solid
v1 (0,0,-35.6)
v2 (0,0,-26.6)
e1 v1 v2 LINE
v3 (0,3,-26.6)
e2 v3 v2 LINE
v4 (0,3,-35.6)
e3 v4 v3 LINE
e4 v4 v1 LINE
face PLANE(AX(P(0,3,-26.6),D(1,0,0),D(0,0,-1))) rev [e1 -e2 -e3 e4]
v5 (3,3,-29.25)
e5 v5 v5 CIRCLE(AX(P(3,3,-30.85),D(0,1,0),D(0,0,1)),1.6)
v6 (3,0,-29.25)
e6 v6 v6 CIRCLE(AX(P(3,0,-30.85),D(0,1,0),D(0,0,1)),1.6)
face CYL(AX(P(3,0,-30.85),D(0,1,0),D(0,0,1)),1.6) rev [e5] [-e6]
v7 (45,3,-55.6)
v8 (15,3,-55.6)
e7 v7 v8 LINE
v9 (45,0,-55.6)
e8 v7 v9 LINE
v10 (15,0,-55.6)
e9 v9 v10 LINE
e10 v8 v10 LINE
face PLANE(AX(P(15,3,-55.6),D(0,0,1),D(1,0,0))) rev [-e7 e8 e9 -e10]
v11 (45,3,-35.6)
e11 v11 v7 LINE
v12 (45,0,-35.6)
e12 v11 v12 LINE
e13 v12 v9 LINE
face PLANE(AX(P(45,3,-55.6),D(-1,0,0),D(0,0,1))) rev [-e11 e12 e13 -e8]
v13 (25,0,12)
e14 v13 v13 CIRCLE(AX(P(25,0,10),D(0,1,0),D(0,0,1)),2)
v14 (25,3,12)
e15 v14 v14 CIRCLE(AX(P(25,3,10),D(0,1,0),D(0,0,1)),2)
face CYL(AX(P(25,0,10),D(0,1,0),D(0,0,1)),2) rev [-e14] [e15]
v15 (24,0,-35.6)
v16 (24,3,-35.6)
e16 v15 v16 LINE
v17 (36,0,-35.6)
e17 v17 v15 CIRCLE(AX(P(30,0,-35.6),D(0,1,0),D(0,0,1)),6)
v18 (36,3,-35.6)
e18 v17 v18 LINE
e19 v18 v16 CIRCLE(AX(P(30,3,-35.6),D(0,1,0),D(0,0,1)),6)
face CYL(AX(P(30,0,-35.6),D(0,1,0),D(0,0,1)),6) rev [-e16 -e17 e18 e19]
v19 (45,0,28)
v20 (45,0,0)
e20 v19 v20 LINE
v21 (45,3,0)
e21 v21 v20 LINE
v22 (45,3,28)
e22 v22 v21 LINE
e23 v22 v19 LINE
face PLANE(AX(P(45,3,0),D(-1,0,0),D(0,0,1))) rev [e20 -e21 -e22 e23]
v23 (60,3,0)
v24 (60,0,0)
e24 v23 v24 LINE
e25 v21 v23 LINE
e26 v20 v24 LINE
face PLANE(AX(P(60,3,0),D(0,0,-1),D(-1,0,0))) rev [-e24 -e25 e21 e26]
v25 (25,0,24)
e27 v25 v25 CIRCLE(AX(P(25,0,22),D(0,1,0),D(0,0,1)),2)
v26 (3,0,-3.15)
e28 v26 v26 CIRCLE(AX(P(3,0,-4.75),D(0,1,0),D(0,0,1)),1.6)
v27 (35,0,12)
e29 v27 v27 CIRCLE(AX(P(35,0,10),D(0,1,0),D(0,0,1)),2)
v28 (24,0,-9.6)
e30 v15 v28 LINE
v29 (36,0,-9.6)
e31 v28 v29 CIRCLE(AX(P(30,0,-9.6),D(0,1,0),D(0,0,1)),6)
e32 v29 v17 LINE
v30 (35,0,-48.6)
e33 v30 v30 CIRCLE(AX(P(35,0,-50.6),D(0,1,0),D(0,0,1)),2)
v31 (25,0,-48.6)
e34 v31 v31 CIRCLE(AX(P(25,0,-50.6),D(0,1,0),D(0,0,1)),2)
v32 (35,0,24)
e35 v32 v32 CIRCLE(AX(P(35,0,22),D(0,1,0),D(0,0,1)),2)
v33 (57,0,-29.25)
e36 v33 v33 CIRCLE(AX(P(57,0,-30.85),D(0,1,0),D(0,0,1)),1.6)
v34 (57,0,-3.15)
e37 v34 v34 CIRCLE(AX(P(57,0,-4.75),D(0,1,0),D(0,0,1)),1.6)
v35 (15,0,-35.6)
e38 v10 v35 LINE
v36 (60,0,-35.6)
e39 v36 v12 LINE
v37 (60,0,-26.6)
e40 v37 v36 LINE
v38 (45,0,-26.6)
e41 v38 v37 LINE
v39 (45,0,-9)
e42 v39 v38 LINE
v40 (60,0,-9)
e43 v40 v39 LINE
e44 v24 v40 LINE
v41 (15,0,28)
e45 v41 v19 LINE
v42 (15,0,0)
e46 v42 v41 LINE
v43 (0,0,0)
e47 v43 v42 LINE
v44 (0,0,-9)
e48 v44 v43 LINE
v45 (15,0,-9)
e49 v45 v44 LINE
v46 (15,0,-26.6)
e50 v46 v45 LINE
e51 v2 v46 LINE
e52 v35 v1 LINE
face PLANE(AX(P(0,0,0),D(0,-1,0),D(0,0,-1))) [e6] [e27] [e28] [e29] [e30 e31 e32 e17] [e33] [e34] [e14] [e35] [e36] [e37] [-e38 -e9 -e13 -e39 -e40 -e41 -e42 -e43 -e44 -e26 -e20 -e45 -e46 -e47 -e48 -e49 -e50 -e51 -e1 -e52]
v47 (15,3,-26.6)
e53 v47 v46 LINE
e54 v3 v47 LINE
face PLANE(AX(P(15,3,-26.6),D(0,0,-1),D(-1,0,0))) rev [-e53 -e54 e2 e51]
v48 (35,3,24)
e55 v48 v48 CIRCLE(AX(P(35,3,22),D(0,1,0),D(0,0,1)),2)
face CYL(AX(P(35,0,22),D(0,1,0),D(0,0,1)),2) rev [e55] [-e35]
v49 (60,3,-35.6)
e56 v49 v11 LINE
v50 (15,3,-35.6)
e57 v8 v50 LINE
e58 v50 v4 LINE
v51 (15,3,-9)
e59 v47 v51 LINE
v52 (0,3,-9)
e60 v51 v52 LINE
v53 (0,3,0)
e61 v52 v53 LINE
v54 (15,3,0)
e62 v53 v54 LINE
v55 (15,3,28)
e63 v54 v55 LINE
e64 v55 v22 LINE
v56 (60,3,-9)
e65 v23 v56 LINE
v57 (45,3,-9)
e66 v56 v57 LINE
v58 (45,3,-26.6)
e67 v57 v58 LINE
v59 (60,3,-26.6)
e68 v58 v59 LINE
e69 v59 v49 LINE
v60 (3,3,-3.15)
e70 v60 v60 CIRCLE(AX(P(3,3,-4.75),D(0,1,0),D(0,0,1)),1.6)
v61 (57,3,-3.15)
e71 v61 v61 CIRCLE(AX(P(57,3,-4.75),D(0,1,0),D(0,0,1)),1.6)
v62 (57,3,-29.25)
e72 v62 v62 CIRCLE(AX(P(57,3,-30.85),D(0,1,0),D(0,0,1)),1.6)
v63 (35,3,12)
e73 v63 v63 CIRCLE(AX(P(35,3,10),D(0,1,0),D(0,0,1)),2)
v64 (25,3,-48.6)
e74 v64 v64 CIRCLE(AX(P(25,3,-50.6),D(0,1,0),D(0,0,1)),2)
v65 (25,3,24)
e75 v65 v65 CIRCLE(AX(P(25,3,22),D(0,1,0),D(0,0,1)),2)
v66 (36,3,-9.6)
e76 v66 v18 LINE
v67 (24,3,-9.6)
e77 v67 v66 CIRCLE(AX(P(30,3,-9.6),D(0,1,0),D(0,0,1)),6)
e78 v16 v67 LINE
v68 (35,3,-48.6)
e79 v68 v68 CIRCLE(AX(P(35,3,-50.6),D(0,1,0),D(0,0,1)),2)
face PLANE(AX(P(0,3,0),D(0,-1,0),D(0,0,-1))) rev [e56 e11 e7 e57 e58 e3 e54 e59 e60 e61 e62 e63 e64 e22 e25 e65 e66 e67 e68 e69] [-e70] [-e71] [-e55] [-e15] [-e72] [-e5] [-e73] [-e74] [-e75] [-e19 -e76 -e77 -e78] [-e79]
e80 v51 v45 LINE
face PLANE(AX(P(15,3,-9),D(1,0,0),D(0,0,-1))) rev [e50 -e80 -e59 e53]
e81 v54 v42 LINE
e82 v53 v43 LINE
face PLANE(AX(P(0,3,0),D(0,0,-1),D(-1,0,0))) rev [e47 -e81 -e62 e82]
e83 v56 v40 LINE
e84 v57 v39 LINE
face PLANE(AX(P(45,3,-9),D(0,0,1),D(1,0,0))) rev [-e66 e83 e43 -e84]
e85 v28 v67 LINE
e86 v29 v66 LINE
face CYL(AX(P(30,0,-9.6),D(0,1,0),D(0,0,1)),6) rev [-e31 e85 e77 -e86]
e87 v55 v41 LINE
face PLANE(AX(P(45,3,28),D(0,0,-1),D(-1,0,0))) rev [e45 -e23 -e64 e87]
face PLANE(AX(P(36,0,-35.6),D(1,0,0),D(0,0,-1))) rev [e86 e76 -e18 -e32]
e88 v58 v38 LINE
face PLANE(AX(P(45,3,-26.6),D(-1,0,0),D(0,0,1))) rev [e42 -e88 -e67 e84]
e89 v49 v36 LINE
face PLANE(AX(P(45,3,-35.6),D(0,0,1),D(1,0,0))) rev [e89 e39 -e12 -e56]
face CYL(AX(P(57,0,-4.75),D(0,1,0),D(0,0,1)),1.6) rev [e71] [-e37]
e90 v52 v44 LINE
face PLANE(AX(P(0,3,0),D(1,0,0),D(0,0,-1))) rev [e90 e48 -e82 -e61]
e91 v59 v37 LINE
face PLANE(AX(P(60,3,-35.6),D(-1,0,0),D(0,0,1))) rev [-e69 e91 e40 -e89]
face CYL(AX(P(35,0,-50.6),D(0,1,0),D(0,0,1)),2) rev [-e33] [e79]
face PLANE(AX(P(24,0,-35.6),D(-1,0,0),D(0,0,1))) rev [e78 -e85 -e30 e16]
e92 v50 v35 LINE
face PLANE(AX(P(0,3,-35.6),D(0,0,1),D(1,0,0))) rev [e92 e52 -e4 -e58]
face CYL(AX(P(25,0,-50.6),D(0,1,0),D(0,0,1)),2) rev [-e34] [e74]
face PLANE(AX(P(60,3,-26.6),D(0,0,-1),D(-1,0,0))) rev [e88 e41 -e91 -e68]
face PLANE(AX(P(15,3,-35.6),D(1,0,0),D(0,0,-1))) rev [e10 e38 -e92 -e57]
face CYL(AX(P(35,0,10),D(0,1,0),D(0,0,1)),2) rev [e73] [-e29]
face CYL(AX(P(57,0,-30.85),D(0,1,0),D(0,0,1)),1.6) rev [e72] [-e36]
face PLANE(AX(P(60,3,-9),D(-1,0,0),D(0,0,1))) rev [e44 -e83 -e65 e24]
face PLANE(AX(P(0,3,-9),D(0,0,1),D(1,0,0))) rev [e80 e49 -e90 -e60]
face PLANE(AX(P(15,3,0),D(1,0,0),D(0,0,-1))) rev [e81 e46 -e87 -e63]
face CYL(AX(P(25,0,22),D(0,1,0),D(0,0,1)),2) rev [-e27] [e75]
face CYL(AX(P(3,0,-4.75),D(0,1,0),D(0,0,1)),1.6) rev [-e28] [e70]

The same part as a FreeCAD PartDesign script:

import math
import FreeCAD as App
import Part
import Sketcher
from FreeCAD import Vector

doc = App.newDocument("Part")
body = doc.addObject("PartDesign::Body", "Body")

sketch1 = doc.addObject("Sketcher::SketchObject", "Sketch")
body.addObject(sketch1)
sketch1.AttachmentSupport = (doc.XZ_Plane, [""])
sketch1.MapMode = "FlatFace"
sketch1.addGeometry([
    Part.LineSegment(Vector(0, 0, 0), Vector(15, 0, 0)),
    Part.LineSegment(Vector(15, 0, 0), Vector(15, 28, 0)),
    Part.LineSegment(Vector(15, 28, 0), Vector(45, 28, 0)),
    Part.LineSegment(Vector(45, 28, 0), Vector(45, 0, 0)),
    Part.LineSegment(Vector(45, 0, 0), Vector(60, 0, 0)),
    Part.LineSegment(Vector(60, 0, 0), Vector(60, -9, 0)),
    Part.LineSegment(Vector(60, -9, 0), Vector(45, -9, 0)),
    Part.LineSegment(Vector(45, -9, 0), Vector(45, -26.6, 0)),
    Part.LineSegment(Vector(45, -26.6, 0), Vector(60, -26.6, 0)),
    Part.LineSegment(Vector(60, -26.6, 0), Vector(60, -35.6, 0)),
    Part.LineSegment(Vector(60, -35.6, 0), Vector(45, -35.6, 0)),
    Part.LineSegment(Vector(45, -35.6, 0), Vector(45, -55.6, 0)),
    Part.LineSegment(Vector(45, -55.6, 0), Vector(15, -55.6, 0)),
    Part.LineSegment(Vector(15, -55.6, 0), Vector(15, -35.6, 0)),
    Part.LineSegment(Vector(15, -35.6, 0), Vector(0, -35.6, 0)),
    Part.LineSegment(Vector(0, -35.6, 0), Vector(0, -26.6, 0)),
    Part.LineSegment(Vector(0, -26.6, 0), Vector(15, -26.6, 0)),
    Part.LineSegment(Vector(15, -26.6, 0), Vector(15, -9, 0)),
    Part.LineSegment(Vector(15, -9, 0), Vector(0, -9, 0)),
    Part.LineSegment(Vector(0, -9, 0), Vector(0, 0, 0)),
], False)
sketch1.addConstraint([
    Sketcher.Constraint("Coincident", 0, 2, 1, 1),
    Sketcher.Constraint("Coincident", 1, 2, 2, 1),
    Sketcher.Constraint("Coincident", 2, 2, 3, 1),
    Sketcher.Constraint("Coincident", 3, 2, 4, 1),
    Sketcher.Constraint("Coincident", 4, 2, 5, 1),
    Sketcher.Constraint("Coincident", 5, 2, 6, 1),
    Sketcher.Constraint("Coincident", 6, 2, 7, 1),
    Sketcher.Constraint("Coincident", 7, 2, 8, 1),
    Sketcher.Constraint("Coincident", 8, 2, 9, 1),
    Sketcher.Constraint("Coincident", 9, 2, 10, 1),
    Sketcher.Constraint("Coincident", 10, 2, 11, 1),
    Sketcher.Constraint("Coincident", 11, 2, 12, 1),
    Sketcher.Constraint("Coincident", 12, 2, 13, 1),
    Sketcher.Constraint("Coincident", 13, 2, 14, 1),
    Sketcher.Constraint("Coincident", 14, 2, 15, 1),
    Sketcher.Constraint("Coincident", 15, 2, 16, 1),
    Sketcher.Constraint("Coincident", 16, 2, 17, 1),
    Sketcher.Constraint("Coincident", 17, 2, 18, 1),
    Sketcher.Constraint("Coincident", 18, 2, 19, 1),
    Sketcher.Constraint("Coincident", 19, 2, 0, 1),
    Sketcher.Constraint("Horizontal", 0),
    Sketcher.Constraint("Vertical", 1),
    Sketcher.Constraint("Horizontal", 2),
    Sketcher.Constraint("Vertical", 3),
    Sketcher.Constraint("Horizontal", 4),
    Sketcher.Constraint("Vertical", 5),
    Sketcher.Constraint("Horizontal", 6),
    Sketcher.Constraint("Vertical", 7),
    Sketcher.Constraint("Horizontal", 8),
    Sketcher.Constraint("Vertical", 9),
    Sketcher.Constraint("Horizontal", 10),
    Sketcher.Constraint("Vertical", 11),
    Sketcher.Constraint("Horizontal", 12),
    Sketcher.Constraint("Vertical", 13),
    Sketcher.Constraint("Horizontal", 14),
    Sketcher.Constraint("Vertical", 15),
    Sketcher.Constraint("Horizontal", 16),
    Sketcher.Constraint("Vertical", 17),
    Sketcher.Constraint("Horizontal", 18),
    Sketcher.Constraint("Vertical", 19),
    Sketcher.Constraint("Coincident", 19, 2, -1, 1),
    Sketcher.Constraint("PointOnObject", 3, 2, -1),
    Sketcher.Constraint("PointOnObject", 14, 2, -2),
    Sketcher.Constraint("Horizontal", 10, 2, 13, 2),
    Sketcher.Constraint("Horizontal", 8, 2, 15, 2),
    Sketcher.Constraint("Horizontal", 6, 2, 17, 2),
    Sketcher.Constraint("Vertical", 3, 2, 6, 2),
    Sketcher.Constraint("Vertical", 5, 2, 8, 2),
    Sketcher.Constraint("Vertical", 7, 2, 10, 2),
    Sketcher.Constraint("Vertical", 1, 2, 12, 2),
    Sketcher.Constraint("Vertical", 13, 2, 16, 2),
    Sketcher.Constraint("Equal", 0, 4),
    Sketcher.Constraint("Equal", 5, 9),
    Sketcher.Constraint("DistanceX", 0, 1, 0, 2, 15.0),
    Sketcher.Constraint("DistanceX", 2, 1, 2, 2, 30.0),
    Sketcher.Constraint("DistanceY", 1, 1, 1, 2, 28.0),
    Sketcher.Constraint("DistanceY", 5, 2, 5, 1, 9.0),
    Sketcher.Constraint("DistanceY", 11, 2, 11, 1, 20.0),
    Sketcher.Constraint("DistanceY", 7, 2, 7, 1, 17.6),
])
pad1 = doc.addObject("PartDesign::Pad", "Pad")
body.addObject(pad1)
pad1.Profile = sketch1
pad1.Length = 3
pad1.Reversed = True

sketch2 = doc.addObject("Sketcher::SketchObject", "Sketch001")
body.addObject(sketch2)
sketch2.AttachmentSupport = (doc.XZ_Plane, [""])
sketch2.MapMode = "FlatFace"
sketch2.AttachmentOffset = App.Placement(Vector(0, 0, -3), App.Rotation())
sketch2.addGeometry([
    Part.Circle(Vector(3, -4.75, 0), Vector(0, 0, 1), 1.6),
    Part.Circle(Vector(3, -30.85, 0), Vector(0, 0, 1), 1.6),
    Part.Circle(Vector(57, -30.85, 0), Vector(0, 0, 1), 1.6),
    Part.Circle(Vector(57, -4.75, 0), Vector(0, 0, 1), 1.6),
], False)
sketch2.addConstraint([
    Sketcher.Constraint("Equal", 0, 1),
    Sketcher.Constraint("Equal", 1, 2),
    Sketcher.Constraint("Equal", 2, 3),
    Sketcher.Constraint("Horizontal", 1, 3, 2, 3),
    Sketcher.Constraint("Horizontal", 0, 3, 3, 3),
    Sketcher.Constraint("Vertical", 0, 3, 1, 3),
    Sketcher.Constraint("Vertical", 2, 3, 3, 3),
    Sketcher.Constraint("Diameter", 0, 3.2),
    Sketcher.Constraint("DistanceX", -1, 1, 0, 3, 3.0),
    Sketcher.Constraint("DistanceX", -1, 1, 2, 3, 57.0),
    Sketcher.Constraint("DistanceY", 1, 3, 0, 3, 26.1),
    Sketcher.Constraint("DistanceY", 0, 3, -1, 1, 4.75),
])
pocket1 = doc.addObject("PartDesign::Pocket", "Pocket")
body.addObject(pocket1)
pocket1.Profile = sketch2
pocket1.Length = 3
pocket1.Reversed = True

sketch3 = doc.addObject("Sketcher::SketchObject", "Sketch002")
body.addObject(sketch3)
sketch3.AttachmentSupport = (doc.XZ_Plane, [""])
sketch3.MapMode = "FlatFace"
sketch3.AttachmentOffset = App.Placement(Vector(0, 0, -3), App.Rotation())
sketch3.addGeometry([
    Part.Circle(Vector(25, -50.6, 0), Vector(0, 0, 1), 2),
    Part.Circle(Vector(35, -50.6, 0), Vector(0, 0, 1), 2),
    Part.Circle(Vector(35, 22, 0), Vector(0, 0, 1), 2),
    Part.Circle(Vector(25, 22, 0), Vector(0, 0, 1), 2),
    Part.Circle(Vector(25, 10, 0), Vector(0, 0, 1), 2),
    Part.Circle(Vector(35, 10, 0), Vector(0, 0, 1), 2),
], False)
sketch3.addConstraint([
    Sketcher.Constraint("Equal", 0, 1),
    Sketcher.Constraint("Equal", 1, 2),
    Sketcher.Constraint("Equal", 2, 3),
    Sketcher.Constraint("Equal", 3, 4),
    Sketcher.Constraint("Equal", 4, 5),
    Sketcher.Constraint("Horizontal", 0, 3, 1, 3),
    Sketcher.Constraint("Horizontal", 2, 3, 3, 3),
    Sketcher.Constraint("Horizontal", 4, 3, 5, 3),
    Sketcher.Constraint("Vertical", 1, 3, 2, 3),
    Sketcher.Constraint("Vertical", 0, 3, 3, 3),
    Sketcher.Constraint("Vertical", 3, 3, 4, 3),
    Sketcher.Constraint("Vertical", 2, 3, 5, 3),
    Sketcher.Constraint("Diameter", 0, 4.0),
    Sketcher.Constraint("DistanceX", -1, 1, 0, 3, 25.0),
    Sketcher.Constraint("DistanceX", -1, 1, 1, 3, 35.0),
    Sketcher.Constraint("DistanceY", -1, 1, 2, 3, 22.0),
    Sketcher.Constraint("DistanceY", -1, 1, 4, 3, 10.0),
    Sketcher.Constraint("DistanceY", 0, 3, -1, 1, 50.6),
])
pocket2 = doc.addObject("PartDesign::Pocket", "Pocket001")
body.addObject(pocket2)
pocket2.Profile = sketch3
pocket2.Length = 3
pocket2.Reversed = True

sketch4 = doc.addObject("Sketcher::SketchObject", "Sketch003")
body.addObject(sketch4)
sketch4.AttachmentSupport = (doc.XZ_Plane, [""])
sketch4.MapMode = "FlatFace"
sketch4.AttachmentOffset = App.Placement(Vector(0, 0, -3), App.Rotation())
sketch4.addGeometry([
    Part.LineSegment(Vector(36, -9.6, 0), Vector(36, -35.6, 0)),
    Part.ArcOfCircle(Part.Circle(Vector(30, -35.6, 0), Vector(0, 0, 1), 6), math.radians(180), math.radians(360)),
    Part.LineSegment(Vector(24, -35.6, 0), Vector(24, -9.6, 0)),
    Part.ArcOfCircle(Part.Circle(Vector(30, -9.6, 0), Vector(0, 0, 1), 6), math.radians(0), math.radians(180)),
], False)
sketch4.addConstraint([
    Sketcher.Constraint("Tangent", 0, 2, 1, 2),
    Sketcher.Constraint("Tangent", 1, 1, 2, 1),
    Sketcher.Constraint("Tangent", 2, 2, 3, 2),
    Sketcher.Constraint("Tangent", 3, 1, 0, 1),
    Sketcher.Constraint("Vertical", 0),
    Sketcher.Constraint("Vertical", 2),
    Sketcher.Constraint("Radius", 1, 6.0),
    Sketcher.Constraint("DistanceY", 0, 2, 0, 1, 26.0),
    Sketcher.Constraint("DistanceX", -1, 1, 1, 3, 30.0),
    Sketcher.Constraint("DistanceY", 1, 3, -1, 1, 35.6),
])
pocket3 = doc.addObject("PartDesign::Pocket", "Pocket002")
body.addObject(pocket3)
pocket3.Profile = sketch4
pocket3.Length = 3
pocket3.Reversed = True

doc.recompute()
